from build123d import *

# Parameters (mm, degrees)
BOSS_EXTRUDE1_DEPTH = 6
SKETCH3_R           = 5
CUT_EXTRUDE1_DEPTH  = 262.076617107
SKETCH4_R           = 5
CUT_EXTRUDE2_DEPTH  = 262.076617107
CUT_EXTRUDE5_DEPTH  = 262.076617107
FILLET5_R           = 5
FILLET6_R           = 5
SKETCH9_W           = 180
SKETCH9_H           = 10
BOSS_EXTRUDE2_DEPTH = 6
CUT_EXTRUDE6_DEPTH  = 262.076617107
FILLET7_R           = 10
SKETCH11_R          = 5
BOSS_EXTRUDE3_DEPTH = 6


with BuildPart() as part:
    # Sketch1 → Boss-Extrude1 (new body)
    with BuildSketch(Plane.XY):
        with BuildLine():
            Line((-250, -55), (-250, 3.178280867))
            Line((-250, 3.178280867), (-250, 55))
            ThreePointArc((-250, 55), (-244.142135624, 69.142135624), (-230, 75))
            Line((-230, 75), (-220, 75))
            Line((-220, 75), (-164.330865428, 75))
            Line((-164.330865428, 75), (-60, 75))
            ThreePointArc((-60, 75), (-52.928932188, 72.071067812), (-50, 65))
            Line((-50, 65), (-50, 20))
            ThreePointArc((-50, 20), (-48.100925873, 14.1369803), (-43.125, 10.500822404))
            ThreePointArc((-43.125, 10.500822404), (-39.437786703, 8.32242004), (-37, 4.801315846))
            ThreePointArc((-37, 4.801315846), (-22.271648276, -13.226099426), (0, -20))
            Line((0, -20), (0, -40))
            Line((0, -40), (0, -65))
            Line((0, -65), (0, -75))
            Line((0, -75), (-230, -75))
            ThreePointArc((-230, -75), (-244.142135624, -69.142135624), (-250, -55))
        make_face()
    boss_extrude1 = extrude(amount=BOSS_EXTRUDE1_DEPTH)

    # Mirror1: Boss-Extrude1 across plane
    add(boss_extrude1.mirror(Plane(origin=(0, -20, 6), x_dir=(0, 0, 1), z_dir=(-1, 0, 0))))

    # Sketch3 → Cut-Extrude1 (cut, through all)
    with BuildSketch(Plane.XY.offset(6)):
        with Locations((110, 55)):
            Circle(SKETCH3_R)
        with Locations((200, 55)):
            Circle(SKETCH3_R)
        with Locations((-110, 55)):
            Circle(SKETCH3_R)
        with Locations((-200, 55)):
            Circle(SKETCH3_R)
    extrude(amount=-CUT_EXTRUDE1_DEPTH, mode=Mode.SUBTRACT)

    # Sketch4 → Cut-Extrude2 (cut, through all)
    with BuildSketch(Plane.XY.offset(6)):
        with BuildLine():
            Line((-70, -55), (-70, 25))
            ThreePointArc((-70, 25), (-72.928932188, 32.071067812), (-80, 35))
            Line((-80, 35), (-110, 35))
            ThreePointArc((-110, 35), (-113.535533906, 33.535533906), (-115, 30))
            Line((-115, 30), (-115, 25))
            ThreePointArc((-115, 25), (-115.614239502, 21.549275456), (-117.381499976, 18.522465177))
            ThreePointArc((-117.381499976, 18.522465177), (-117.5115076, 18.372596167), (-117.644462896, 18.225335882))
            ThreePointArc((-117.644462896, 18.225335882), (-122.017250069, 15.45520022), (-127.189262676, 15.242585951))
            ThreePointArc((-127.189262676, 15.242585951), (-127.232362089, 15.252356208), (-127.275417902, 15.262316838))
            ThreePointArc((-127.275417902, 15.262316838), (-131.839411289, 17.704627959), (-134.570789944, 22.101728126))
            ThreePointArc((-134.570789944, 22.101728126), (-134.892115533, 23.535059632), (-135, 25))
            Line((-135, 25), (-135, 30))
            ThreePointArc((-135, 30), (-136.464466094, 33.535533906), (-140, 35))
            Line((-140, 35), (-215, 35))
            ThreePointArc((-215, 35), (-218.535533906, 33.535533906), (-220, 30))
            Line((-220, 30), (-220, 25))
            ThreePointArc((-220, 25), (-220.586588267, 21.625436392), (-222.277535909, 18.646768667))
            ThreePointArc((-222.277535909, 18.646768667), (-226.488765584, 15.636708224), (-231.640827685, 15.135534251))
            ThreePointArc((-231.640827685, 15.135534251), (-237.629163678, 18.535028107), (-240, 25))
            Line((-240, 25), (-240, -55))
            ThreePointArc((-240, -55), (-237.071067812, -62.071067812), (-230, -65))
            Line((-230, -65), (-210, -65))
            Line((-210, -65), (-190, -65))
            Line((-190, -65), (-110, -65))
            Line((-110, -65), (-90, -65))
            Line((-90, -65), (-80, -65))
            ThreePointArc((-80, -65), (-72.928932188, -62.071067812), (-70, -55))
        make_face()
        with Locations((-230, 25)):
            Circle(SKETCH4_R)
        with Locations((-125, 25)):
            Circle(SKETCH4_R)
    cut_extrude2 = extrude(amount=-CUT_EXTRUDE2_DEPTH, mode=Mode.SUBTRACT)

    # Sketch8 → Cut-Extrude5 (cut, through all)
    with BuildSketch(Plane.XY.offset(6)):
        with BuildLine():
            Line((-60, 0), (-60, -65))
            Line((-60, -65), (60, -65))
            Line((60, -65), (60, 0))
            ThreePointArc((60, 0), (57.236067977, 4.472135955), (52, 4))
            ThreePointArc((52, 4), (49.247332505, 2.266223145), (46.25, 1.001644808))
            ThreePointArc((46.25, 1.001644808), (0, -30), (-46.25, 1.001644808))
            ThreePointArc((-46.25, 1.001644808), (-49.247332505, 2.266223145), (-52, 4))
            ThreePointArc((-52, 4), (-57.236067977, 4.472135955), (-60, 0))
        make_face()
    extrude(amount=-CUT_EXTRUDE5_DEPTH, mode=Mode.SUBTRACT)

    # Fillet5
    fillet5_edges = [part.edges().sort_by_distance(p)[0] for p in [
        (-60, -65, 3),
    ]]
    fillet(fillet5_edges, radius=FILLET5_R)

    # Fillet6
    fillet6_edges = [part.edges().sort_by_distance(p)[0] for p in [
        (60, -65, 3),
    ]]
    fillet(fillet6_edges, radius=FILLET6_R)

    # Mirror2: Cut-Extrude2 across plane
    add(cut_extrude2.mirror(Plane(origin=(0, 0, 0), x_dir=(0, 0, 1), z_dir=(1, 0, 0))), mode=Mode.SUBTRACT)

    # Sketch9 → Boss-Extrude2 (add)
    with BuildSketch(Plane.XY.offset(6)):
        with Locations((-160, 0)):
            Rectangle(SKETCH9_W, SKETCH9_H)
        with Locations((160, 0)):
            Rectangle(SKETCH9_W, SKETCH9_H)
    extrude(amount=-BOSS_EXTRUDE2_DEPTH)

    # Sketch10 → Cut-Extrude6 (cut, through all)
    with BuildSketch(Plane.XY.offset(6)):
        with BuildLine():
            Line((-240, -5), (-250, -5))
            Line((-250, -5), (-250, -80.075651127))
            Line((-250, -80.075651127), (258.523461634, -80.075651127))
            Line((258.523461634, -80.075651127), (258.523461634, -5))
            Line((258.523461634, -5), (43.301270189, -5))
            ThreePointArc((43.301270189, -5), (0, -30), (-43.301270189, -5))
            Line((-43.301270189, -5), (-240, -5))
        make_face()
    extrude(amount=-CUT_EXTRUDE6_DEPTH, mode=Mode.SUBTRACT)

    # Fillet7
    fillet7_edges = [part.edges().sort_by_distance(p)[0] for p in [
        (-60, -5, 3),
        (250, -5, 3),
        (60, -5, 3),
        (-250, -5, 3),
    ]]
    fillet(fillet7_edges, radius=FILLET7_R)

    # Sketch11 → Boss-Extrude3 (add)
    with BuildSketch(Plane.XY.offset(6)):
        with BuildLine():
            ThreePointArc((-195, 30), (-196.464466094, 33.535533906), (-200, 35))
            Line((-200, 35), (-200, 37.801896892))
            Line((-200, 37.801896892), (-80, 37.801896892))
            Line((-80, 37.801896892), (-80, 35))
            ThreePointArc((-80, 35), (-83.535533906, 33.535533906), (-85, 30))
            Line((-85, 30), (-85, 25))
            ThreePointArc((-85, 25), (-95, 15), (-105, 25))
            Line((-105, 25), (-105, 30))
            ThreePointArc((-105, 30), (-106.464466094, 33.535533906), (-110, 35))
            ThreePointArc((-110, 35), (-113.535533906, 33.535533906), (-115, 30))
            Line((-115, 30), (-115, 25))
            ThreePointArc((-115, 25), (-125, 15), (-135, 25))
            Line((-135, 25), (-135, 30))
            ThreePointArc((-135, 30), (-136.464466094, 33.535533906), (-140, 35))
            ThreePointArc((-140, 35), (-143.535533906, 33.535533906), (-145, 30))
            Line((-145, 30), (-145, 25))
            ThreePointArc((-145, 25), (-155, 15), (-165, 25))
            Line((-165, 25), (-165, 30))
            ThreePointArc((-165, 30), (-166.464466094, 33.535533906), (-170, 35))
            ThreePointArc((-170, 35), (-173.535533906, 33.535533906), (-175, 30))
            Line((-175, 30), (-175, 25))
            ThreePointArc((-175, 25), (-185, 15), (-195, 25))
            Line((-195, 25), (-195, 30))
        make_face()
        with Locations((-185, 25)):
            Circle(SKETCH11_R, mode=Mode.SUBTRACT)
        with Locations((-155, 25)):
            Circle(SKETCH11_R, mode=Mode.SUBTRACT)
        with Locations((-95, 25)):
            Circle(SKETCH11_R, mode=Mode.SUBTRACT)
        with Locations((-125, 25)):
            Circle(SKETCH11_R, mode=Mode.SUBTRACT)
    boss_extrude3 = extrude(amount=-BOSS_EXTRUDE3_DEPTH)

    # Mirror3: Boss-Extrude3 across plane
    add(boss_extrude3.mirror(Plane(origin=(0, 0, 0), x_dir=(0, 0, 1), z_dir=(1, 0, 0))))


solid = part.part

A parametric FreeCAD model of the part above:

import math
import FreeCAD as App
import Part
import Sketcher
Q = App.Units.Quantity


def edges_at(feature, points):
    """Names of the edges that pass closest to the given points."""
    edges = feature.Shape.Edges
    near = lambda p: min(range(len(edges)), key=lambda i: edges[i].distToShape(Part.Vertex(*p))[0])
    return sorted({f"Edge{near(p) + 1}" for p in points})

doc = App.newDocument("Part")
body = doc.addObject("PartDesign::Body", "Body")

# Sketch on XY plane
sketch1 = body.newObject("Sketcher::SketchObject", "Sketch")
sketch1.AttachmentSupport = (doc.getObject("XY_Plane"), [""])
sketch1.MapMode = "FlatFace"
sketch1.addGeometry([
    Part.LineSegment(App.Vector(-250, 55, 0), App.Vector(-250, -55, 0)),  # 0
    Part.ArcOfCircle(Part.Circle(App.Vector(-230, -55, 0), App.Vector(0, 0, 1), 20), math.radians(180), math.radians(270)),  # 1
    Part.LineSegment(App.Vector(-230, -75, 0), App.Vector(0, -75, 0)),  # 2
    Part.LineSegment(App.Vector(0, -75, 0), App.Vector(0, -20, 0)),  # 3
    Part.ArcOfCircle(Part.Circle(App.Vector(0, 20, 0), App.Vector(0, 0, 1), 40), math.radians(-157.668355), math.radians(-90)),  # 4
    Part.ArcOfCircle(Part.Circle(App.Vector(-46.25, 1.001645, 0), App.Vector(0, 0, 1), 10), math.radians(22.331645), math.radians(71.790043)),  # 5
    Part.ArcOfCircle(Part.Circle(App.Vector(-40, 20, 0), App.Vector(0, 0, 1), 10), math.radians(180), math.radians(251.790043)),  # 6
    Part.LineSegment(App.Vector(-50, 20, 0), App.Vector(-50, 65, 0)),  # 7
    Part.ArcOfCircle(Part.Circle(App.Vector(-60, 65, 0), App.Vector(0, 0, 1), 10), math.radians(0), math.radians(90)),  # 8
    Part.LineSegment(App.Vector(-60, 75, 0), App.Vector(-230, 75, 0)),  # 9
    Part.ArcOfCircle(Part.Circle(App.Vector(-230, 55, 0), App.Vector(0, 0, 1), 20), math.radians(90), math.radians(180)),  # 10
], False)
sketch1.addConstraint([
    Sketcher.Constraint("Tangent", 0, 2, 1, 1),
    Sketcher.Constraint("Tangent", 1, 2, 2, 1),
    Sketcher.Constraint("Coincident", 2, 2, 3, 1),
    Sketcher.Constraint("Coincident", 3, 2, 4, 2),
    Sketcher.Constraint("Tangent", 4, 1, 5, 1),
    Sketcher.Constraint("Tangent", 5, 2, 6, 2),
    Sketcher.Constraint("Tangent", 6, 1, 7, 1),
    Sketcher.Constraint("Tangent", 7, 2, 8, 1),
    Sketcher.Constraint("Tangent", 8, 2, 9, 1),
    Sketcher.Constraint("Tangent", 9, 2, 10, 1),
    Sketcher.Constraint("Tangent", 10, 2, 0, 1),
    Sketcher.Constraint("Vertical", 0),
    Sketcher.Constraint("Horizontal", 2),
    Sketcher.Constraint("Vertical", 3),
    Sketcher.Constraint("Vertical", 7),
    Sketcher.Constraint("Horizontal", 9),
    Sketcher.Constraint("Equal", 5, 6),
    Sketcher.Constraint("Equal", 6, 8),
    Sketcher.Constraint("Equal", 1, 10),
    Sketcher.Constraint("PointOnObject", 4, 3, -2),
    Sketcher.Constraint("PointOnObject", 2, 2, -2),
    Sketcher.Constraint("Horizontal", 4, 3, 6, 3),
    Sketcher.Constraint("Radius", 1, Q("20 mm")),
    Sketcher.Constraint("Radius", 4, Q("40 mm")),
    Sketcher.Constraint("Radius", 5, Q("10 mm")),
    Sketcher.Constraint("DistanceX", 2, 1, 2, 2, Q("230 mm")),
    Sketcher.Constraint("DistanceX", 9, 2, 9, 1, Q("170 mm")),
    Sketcher.Constraint("DistanceY", 0, 2, 0, 1, Q("110 mm")),
    Sketcher.Constraint("DistanceY", 3, 1, 3, 2, Q("55 mm")),
    Sketcher.Constraint("DistanceY", 1, 3, -1, 1, Q("55 mm")),
])
pad1 = body.newObject("PartDesign::Pad", "Pad")
pad1.Profile = sketch1
pad1.Length = 6
doc.recompute()

mirrored = body.newObject("PartDesign::Mirrored", "Mirrored")
mirrored.Originals = [pad1]
mirrored.MirrorPlane = (doc.getObject("YZ_Plane"), [""])
body.Tip = mirrored

# Sketch on XY plane
sketch2 = body.newObject("Sketcher::SketchObject", "Sketch001")
sketch2.AttachmentSupport = (doc.getObject("XY_Plane"), [""])
sketch2.MapMode = "FlatFace"
sketch2.AttachmentOffset = App.Placement(App.Vector(0, 0, 6), App.Rotation())
sketch2.addGeometry([
    Part.Circle(App.Vector(110, 55, 0), App.Vector(0, 0, 1), 5),
    Part.Circle(App.Vector(200, 55, 0), App.Vector(0, 0, 1), 5),
    Part.Circle(App.Vector(-110, 55, 0), App.Vector(0, 0, 1), 5),
    Part.Circle(App.Vector(-200, 55, 0), App.Vector(0, 0, 1), 5),
], False)
sketch2.addConstraint([
    Sketcher.Constraint("Equal", 0, 1),
    Sketcher.Constraint("Equal", 1, 2),
    Sketcher.Constraint("Equal", 2, 3),
    Sketcher.Constraint("Symmetric", 0, 3, 2, 3, -2),
    Sketcher.Constraint("Symmetric", 1, 3, 3, 3, -2),
    Sketcher.Constraint("Horizontal", 0, 3, 1, 3),
    Sketcher.Constraint("Diameter", 0, Q("10 mm")),
    Sketcher.Constraint("DistanceX", -1, 1, 0, 3, Q("110 mm")),
    Sketcher.Constraint("DistanceY", -1, 1, 0, 3, Q("55 mm")),
    Sketcher.Constraint("DistanceX", -1, 1, 1, 3, Q("200 mm")),
])
pocket1 = body.newObject("PartDesign::Pocket", "Pocket")
pocket1.Profile = sketch2
pocket1.Type = "ThroughAll"

# Sketch on XY plane
sketch3 = body.newObject("Sketcher::SketchObject", "Sketch002")
sketch3.AttachmentSupport = (doc.getObject("XY_Plane"), [""])
sketch3.MapMode = "FlatFace"
sketch3.AttachmentOffset = App.Placement(App.Vector(0, 0, 6), App.Rotation())
sketch3.addGeometry([
    Part.LineSegment(App.Vector(-70, -55, 0), App.Vector(-70, 25, 0)),  # 0
    Part.ArcOfCircle(Part.Circle(App.Vector(-80, 25, 0), App.Vector(0, 0, 1), 10), math.radians(0), math.radians(90)),  # 1
    Part.LineSegment(App.Vector(-80, 35, 0), App.Vector(-110, 35, 0)),  # 2
    Part.ArcOfCircle(Part.Circle(App.Vector(-110, 30, 0), App.Vector(0, 0, 1), 5), math.radians(90), math.radians(180)),  # 3
    Part.LineSegment(App.Vector(-115, 30, 0), App.Vector(-115, 25, 0)),  # 4
    Part.ArcOfCircle(Part.Circle(App.Vector(-125, 25, 0), App.Vector(0, 0, 1), 10), math.radians(-40.372437), math.radians(0)),  # 5
    Part.ArcOfCircle(Part.Circle(App.Vector(-125.000002, 25.000002, 0), App.Vector(0, 0, 1), 10.000002), math.radians(-42.645975), math.radians(-40.372438)),  # 6
    Part.ArcOfCircle(Part.Circle(App.Vector(-125, 25, 0), App.Vector(0, 0, 1), 10), math.radians(-102.645975), math.radians(-42.645975)),  # 7
    Part.ArcOfCircle(Part.Circle(App.Vector(-125.000002, 24.99999, 0), App.Vector(0, 0, 1), 9.99999), math.radians(-103.15239), math.radians(-102.645975)),  # 8
    Part.ArcOfCircle(Part.Circle(App.Vector(-125, 25, 0), App.Vector(0, 0, 1), 10), math.radians(-163.15239), math.radians(-103.15239)),  # 9
    Part.ArcOfCircle(Part.Circle(App.Vector(-125, 25, 0), App.Vector(0, 0, 1), 10), math.radians(-180), math.radians(-163.15239)),  # 10
    Part.LineSegment(App.Vector(-135, 25, 0), App.Vector(-135, 30, 0)),  # 11
    Part.ArcOfCircle(Part.Circle(App.Vector(-140, 30, 0), App.Vector(0, 0, 1), 5), math.radians(0), math.radians(90)),  # 12
    Part.LineSegment(App.Vector(-140, 35, 0), App.Vector(-215, 35, 0)),  # 13
    Part.ArcOfCircle(Part.Circle(App.Vector(-215, 30, 0), App.Vector(0, 0, 1), 5), math.radians(90), math.radians(180)),  # 14
    Part.LineSegment(App.Vector(-220, 30, 0), App.Vector(-220, 25, 0)),  # 15
    Part.ArcOfCircle(Part.Circle(App.Vector(-230, 25, 0), App.Vector(0, 0, 1), 10), math.radians(-39.443955), math.radians(0)),  # 16
    Part.ArcOfCircle(Part.Circle(App.Vector(-230, 25, 0), App.Vector(0, 0, 1), 10), math.radians(-99.443955), math.radians(-39.443955)),  # 17
    Part.ArcOfCircle(Part.Circle(App.Vector(-230, 25, 0), App.Vector(0, 0, 1), 10), math.radians(180), math.radians(260.556045)),  # 18
    Part.LineSegment(App.Vector(-240, 25, 0), App.Vector(-240, -55, 0)),  # 19
    Part.ArcOfCircle(Part.Circle(App.Vector(-230, -55, 0), App.Vector(0, 0, 1), 10), math.radians(180), math.radians(270)),  # 20
    Part.LineSegment(App.Vector(-230, -65, 0), App.Vector(-80, -65, 0)),  # 21
    Part.ArcOfCircle(Part.Circle(App.Vector(-80, -55, 0), App.Vector(0, 0, 1), 10), math.radians(-90), math.radians(0)),  # 22
    Part.Circle(App.Vector(-230, 25, 0), App.Vector(0, 0, 1), 5),  # 23
    Part.Circle(App.Vector(-125, 25, 0), App.Vector(0, 0, 1), 5),  # 24
], False)
sketch3.addConstraint([
    Sketcher.Constraint("Tangent", 0, 2, 1, 1),
    Sketcher.Constraint("Tangent", 1, 2, 2, 1),
    Sketcher.Constraint("Tangent", 2, 2, 3, 1),
    Sketcher.Constraint("Tangent", 3, 2, 4, 1),
    Sketcher.Constraint("Tangent", 4, 2, 5, 2),
    Sketcher.Constraint("Tangent", 5, 1, 6, 2),
    Sketcher.Constraint("Tangent", 6, 1, 7, 2),
    Sketcher.Constraint("Tangent", 7, 1, 8, 2),
    Sketcher.Constraint("Tangent", 8, 1, 9, 2),
    Sketcher.Constraint("Tangent", 9, 1, 10, 2),
    Sketcher.Constraint("Tangent", 10, 1, 11, 1),
    Sketcher.Constraint("Tangent", 11, 2, 12, 1),
    Sketcher.Constraint("Tangent", 12, 2, 13, 1),
    Sketcher.Constraint("Tangent", 13, 2, 14, 1),
    Sketcher.Constraint("Tangent", 14, 2, 15, 1),
    Sketcher.Constraint("Tangent", 15, 2, 16, 2),
    Sketcher.Constraint("Tangent", 16, 1, 17, 2),
    Sketcher.Constraint("Tangent", 17, 1, 18, 2),
    Sketcher.Constraint("Tangent", 18, 1, 19, 1),
    Sketcher.Constraint("Tangent", 19, 2, 20, 1),
    Sketcher.Constraint("Tangent", 20, 2, 21, 1),
    Sketcher.Constraint("Tangent", 21, 2, 22, 1),
    Sketcher.Constraint("Tangent", 22, 2, 0, 1),
    Sketcher.Constraint("Vertical", 0),
    Sketcher.Constraint("Horizontal", 2),
    Sketcher.Constraint("Vertical", 4),
    Sketcher.Constraint("Vertical", 11),
    Sketcher.Constraint("Horizontal", 13),
    Sketcher.Constraint("Vertical", 15),
    Sketcher.Constraint("Vertical", 19),
    Sketcher.Constraint("Horizontal", 21),
    Sketcher.Constraint("Coincident", 7, 3, 5, 3),
    Sketcher.Constraint("Coincident", 9, 3, 5, 3),
    Sketcher.Constraint("Coincident", 18, 3, 16, 3),
    Sketcher.Constraint("Coincident", 23, 3, 16, 3),
    Sketcher.Constraint("Coincident", 24, 3, 5, 3),
    Sketcher.Constraint("Equal", 1, 5),
    Sketcher.Constraint("Equal", 9, 10),
    Sketcher.Constraint("Equal", 3, 12),
    Sketcher.Constraint("Equal", 12, 14),
    Sketcher.Constraint("Equal", 10, 16),
    Sketcher.Constraint("Equal", 18, 20),
    Sketcher.Constraint("Equal", 20, 22),
    Sketcher.Constraint("Equal", 14, 23),
    Sketcher.Constraint("Equal", 23, 24),
    Sketcher.Constraint("Horizontal", 1, 3, 5, 3),
    Sketcher.Constraint("Horizontal", 3, 3, 12, 3),
    Sketcher.Constraint("Horizontal", 10, 3, 16, 3),
    Sketcher.Constraint("Diameter", 23, Q("10 mm")),
    Sketcher.Constraint("Radius", 1, Q("10 mm")),
    Sketcher.Constraint("DistanceX", 2, 2, 2, 1, Q("30 mm")),
    Sketcher.Constraint("DistanceX", 13, 2, 13, 1, Q("75 mm")),
    Sketcher.Constraint("DistanceY", 0, 1, 0, 2, Q("80 mm")),
    Sketcher.Constraint("DistanceX", 1, 3, -1, 1, Q("80 mm")),
    Sketcher.Constraint("DistanceY", -1, 1, 1, 3, Q("25 mm")),
    Sketcher.Constraint("DistanceX", 5, 1, -1, 1, Q("117.3815 mm")),
    Sketcher.Constraint("DistanceX", 7, 1, 6, 1, Q("9.5448 mm")),
    Sketcher.Constraint("DistanceX", 9, 1, -1, 1, Q("134.57079 mm")),
    Sketcher.Constraint("DistanceY", -1, 1, 16, 1, Q("18.646769 mm")),
    Sketcher.Constraint("DistanceY", 6, 1, 5, 1, Q("0.297129 mm")),
    Sketcher.Constraint("DistanceY", 7, 1, 8, 1, Q("0.019731 mm")),
    Sketcher.Constraint("DistanceX", 17, 1, 16, 1, Q("9.363292 mm")),
])
pocket2 = body.newObject("PartDesign::Pocket", "Pocket001")
pocket2.Profile = sketch3
pocket2.Type = "ThroughAll"

# Sketch on XY plane
sketch4 = body.newObject("Sketcher::SketchObject", "Sketch003")
sketch4.AttachmentSupport = (doc.getObject("XY_Plane"), [""])
sketch4.MapMode = "FlatFace"
sketch4.AttachmentOffset = App.Placement(App.Vector(0, 0, 6), App.Rotation())
sketch4.addGeometry([
    Part.LineSegment(App.Vector(-60, 0, 0), App.Vector(-60, -65, 0)),  # 0
    Part.LineSegment(App.Vector(-60, -65, 0), App.Vector(60, -65, 0)),  # 1
    Part.LineSegment(App.Vector(60, -65, 0), App.Vector(60, 0, 0)),  # 2
    Part.ArcOfCircle(Part.Circle(App.Vector(55, 0, 0), App.Vector(0, 0, 1), 5), math.radians(0), math.radians(126.869898)),  # 3
    Part.ArcOfCircle(Part.Circle(App.Vector(40, 20, 0), App.Vector(0, 0, 1), 20), math.radians(-71.790043), math.radians(-53.130102)),  # 4
    Part.ArcOfCircle(Part.Circle(App.Vector(0, 20, 0), App.Vector(0, 0, 1), 50), math.radians(-157.668355), math.radians(-22.331645)),  # 5
    Part.ArcOfCircle(Part.Circle(App.Vector(-40, 20, 0), App.Vector(0, 0, 1), 20), math.radians(-126.869898), math.radians(-108.209957)),  # 6
    Part.ArcOfCircle(Part.Circle(App.Vector(-55, 0, 0), App.Vector(0, 0, 1), 5), math.radians(53.130102), math.radians(180)),  # 7
], False)
sketch4.addConstraint([
    Sketcher.Constraint("Coincident", 0, 2, 1, 1),
    Sketcher.Constraint("Coincident", 1, 2, 2, 1),
    Sketcher.Constraint("Tangent", 2, 2, 3, 1),
    Sketcher.Constraint("Tangent", 3, 2, 4, 2),
    Sketcher.Constraint("Coincident", 4, 1, 5, 2),
    Sketcher.Constraint("Coincident", 5, 1, 6, 2),
    Sketcher.Constraint("Tangent", 6, 1, 7, 1),
    Sketcher.Constraint("Tangent", 7, 2, 0, 1),
    Sketcher.Constraint("Vertical", 0),
    Sketcher.Constraint("Horizontal", 1),
    Sketcher.Constraint("Vertical", 2),
    Sketcher.Constraint("Equal", 4, 6),
    Sketcher.Constraint("Equal", 3, 7),
    Sketcher.Constraint("Symmetric", 3, 3, 7, 3, -1, 1),
    Sketcher.Constraint("Symmetric", 4, 3, 6, 3, -2),
    Sketcher.Constraint("PointOnObject", 5, 3, -2),
    Sketcher.Constraint("Horizontal", 4, 3, 5, 3),
    Sketcher.Constraint("Radius", 3, Q("5 mm")),
    Sketcher.Constraint("Radius", 4, Q("20 mm")),
    Sketcher.Constraint("Radius", 5, Q("50 mm")),
    Sketcher.Constraint("DistanceX", 1, 1, 1, 2, Q("120 mm")),
    Sketcher.Constraint("DistanceY", 0, 2, 0, 1, Q("65 mm")),
    Sketcher.Constraint("DistanceX", -1, 1, 4, 3, Q("40 mm")),
])
pocket3 = body.newObject("PartDesign::Pocket", "Pocket002")
pocket3.Profile = sketch4
pocket3.Type = "ThroughAll"
doc.recompute()

fillet = body.newObject("PartDesign::Fillet", "Fillet")
fillet.Base = (pocket3, edges_at(pocket3, [(-60, -65, 3)]))
fillet.Radius = 5
doc.recompute()

fillet2 = body.newObject("PartDesign::Fillet", "Fillet001")
fillet2.Base = (fillet, edges_at(fillet, [(60, -65, 3)]))
fillet2.Radius = 5
doc.recompute()

mirrored2 = body.newObject("PartDesign::Mirrored", "Mirrored001")
mirrored2.Originals = [pocket2]
mirrored2.MirrorPlane = (doc.getObject("YZ_Plane"), [""])
body.Tip = mirrored2

# Sketch on XY plane
sketch5 = body.newObject("Sketcher::SketchObject", "Sketch004")
sketch5.AttachmentSupport = (doc.getObject("XY_Plane"), [""])
sketch5.MapMode = "FlatFace"
sketch5.AttachmentOffset = App.Placement(App.Vector(0, 0, 6), App.Rotation())
sketch5.addGeometry([
    Part.LineSegment(App.Vector(-250, 5, 0), App.Vector(-250, -5, 0)),  # 0
    Part.LineSegment(App.Vector(-250, -5, 0), App.Vector(-70, -5, 0)),  # 1
    Part.LineSegment(App.Vector(-70, -5, 0), App.Vector(-70, 5, 0)),  # 2
    Part.LineSegment(App.Vector(-70, 5, 0), App.Vector(-250, 5, 0)),  # 3
    Part.LineSegment(App.Vector(70, 5, 0), App.Vector(70, -5, 0)),  # 4
    Part.LineSegment(App.Vector(70, -5, 0), App.Vector(250, -5, 0)),  # 5
    Part.LineSegment(App.Vector(250, -5, 0), App.Vector(250, 5, 0)),  # 6
    Part.LineSegment(App.Vector(250, 5, 0), App.Vector(70, 5, 0)),  # 7
], False)
sketch5.addConstraint([
    Sketcher.Constraint("Coincident", 0, 2, 1, 1),
    Sketcher.Constraint("Coincident", 1, 2, 2, 1),
    Sketcher.Constraint("Coincident", 2, 2, 3, 1),
    Sketcher.Constraint("Coincident", 3, 2, 0, 1),
    Sketcher.Constraint("Coincident", 4, 2, 5, 1),
    Sketcher.Constraint("Coincident", 5, 2, 6, 1),
    Sketcher.Constraint("Coincident", 6, 2, 7, 1),
    Sketcher.Constraint("Coincident", 7, 2, 4, 1),
    Sketcher.Constraint("Vertical", 0),
    Sketcher.Constraint("Horizontal", 1),
    Sketcher.Constraint("Vertical", 2),
    Sketcher.Constraint("Horizontal", 3),
    Sketcher.Constraint("Vertical", 4),
    Sketcher.Constraint("Horizontal", 5),
    Sketcher.Constraint("Vertical", 6),
    Sketcher.Constraint("Horizontal", 7),
    Sketcher.Constraint("Symmetric", 2, 2, 4, 2, -1, 1),
    Sketcher.Constraint("Symmetric", 0, 2, 6, 2, -1, 1),
    Sketcher.Constraint("Horizontal", 1, 2, 4, 2),
    Sketcher.Constraint("DistanceX", 1, 1, 1, 2, Q("180 mm")),
    Sketcher.Constraint("DistanceY", 0, 2, 0, 1, Q("10 mm")),
    Sketcher.Constraint("DistanceX", 0, 2, -1, 1, Q("250 mm")),
])
pad2 = body.newObject("PartDesign::Pad", "Pad001")
pad2.Profile = sketch5
pad2.Length = 6
pad2.Reversed = True

# Sketch on XY plane
sketch6 = body.newObject("Sketcher::SketchObject", "Sketch005")
sketch6.AttachmentSupport = (doc.getObject("XY_Plane"), [""])
sketch6.MapMode = "FlatFace"
sketch6.AttachmentOffset = App.Placement(App.Vector(0, 0, 6), App.Rotation())
sketch6.addGeometry([
    Part.LineSegment(App.Vector(-250, -5, 0), App.Vector(-250, -80.075651, 0)),  # 0
    Part.LineSegment(App.Vector(-250, -80.075651, 0), App.Vector(258.523462, -80.075651, 0)),  # 1
    Part.LineSegment(App.Vector(258.523462, -80.075651, 0), App.Vector(258.523462, -5, 0)),  # 2
    Part.LineSegment(App.Vector(258.523462, -5, 0), App.Vector(43.30127, -5, 0)),  # 3
    Part.ArcOfCircle(Part.Circle(App.Vector(0, 20, 0), App.Vector(0, 0, 1), 50), math.radians(-150), math.radians(-30)),  # 4
    Part.LineSegment(App.Vector(-43.30127, -5, 0), App.Vector(-250, -5, 0)),  # 5
], False)
sketch6.addConstraint([
    Sketcher.Constraint("Coincident", 0, 2, 1, 1),
    Sketcher.Constraint("Coincident", 1, 2, 2, 1),
    Sketcher.Constraint("Coincident", 2, 2, 3, 1),
    Sketcher.Constraint("Coincident", 3, 2, 4, 2),
    Sketcher.Constraint("Coincident", 4, 1, 5, 1),
    Sketcher.Constraint("Coincident", 5, 2, 0, 1),
    Sketcher.Constraint("Vertical", 0),
    Sketcher.Constraint("Horizontal", 1),
    Sketcher.Constraint("Vertical", 2),
    Sketcher.Constraint("Horizontal", 3),
    Sketcher.Constraint("Horizontal", 5),
    Sketcher.Constraint("Symmetric", 3, 2, 4, 1, -2),
    Sketcher.Constraint("Radius", 4, Q("50 mm")),
    Sketcher.Constraint("DistanceY", -1, 1, 4, 3, Q("20 mm")),
    Sketcher.Constraint("DistanceX", 0, 2, -1, 1, Q("250 mm")),
    Sketcher.Constraint("DistanceY", 2, 2, -1, 1, Q("5 mm")),
    Sketcher.Constraint("DistanceX", 1, 1, 1, 2, Q("508.523462 mm")),
    Sketcher.Constraint("DistanceY", 0, 2, 0, 1, Q("75.075651 mm")),
])
pocket4 = body.newObject("PartDesign::Pocket", "Pocket003")
pocket4.Profile = sketch6
pocket4.Type = "ThroughAll"
doc.recompute()

fillet3 = body.newObject("PartDesign::Fillet", "Fillet002")
fillet3.Base = (pocket4, edges_at(pocket4, [
    (-60, -5, 3),
    (250, -5, 3),
    (60, -5, 3),
    (-250, -5, 3),
]))
fillet3.Radius = 10

# Sketch on XY plane
sketch7 = body.newObject("Sketcher::SketchObject", "Sketch006")
sketch7.AttachmentSupport = (doc.getObject("XY_Plane"), [""])
sketch7.MapMode = "FlatFace"
sketch7.AttachmentOffset = App.Placement(App.Vector(0, 0, 6), App.Rotation())
sketch7.addGeometry([
    Part.ArcOfCircle(Part.Circle(App.Vector(-200, 30, 0), App.Vector(0, 0, 1), 5), math.radians(0), math.radians(90)),  # 0
    Part.LineSegment(App.Vector(-195, 30, 0), App.Vector(-195, 25, 0)),  # 1
    Part.ArcOfCircle(Part.Circle(App.Vector(-185, 25, 0), App.Vector(0, 0, 1), 10), math.radians(180), math.radians(360)),  # 2
    Part.LineSegment(App.Vector(-175, 25, 0), App.Vector(-175, 30, 0)),  # 3
    Part.ArcOfCircle(Part.Circle(App.Vector(-170, 30, 0), App.Vector(0, 0, 1), 5), math.radians(90), math.radians(180)),  # 4
    Part.ArcOfCircle(Part.Circle(App.Vector(-170, 30, 0), App.Vector(0, 0, 1), 5), math.radians(0), math.radians(90)),  # 5
    Part.LineSegment(App.Vector(-165, 30, 0), App.Vector(-165, 25, 0)),  # 6
    Part.ArcOfCircle(Part.Circle(App.Vector(-155, 25, 0), App.Vector(0, 0, 1), 10), math.radians(180), math.radians(360)),  # 7
    Part.LineSegment(App.Vector(-145, 25, 0), App.Vector(-145, 30, 0)),  # 8
    Part.ArcOfCircle(Part.Circle(App.Vector(-140, 30, 0), App.Vector(0, 0, 1), 5), math.radians(90), math.radians(180)),  # 9
    Part.ArcOfCircle(Part.Circle(App.Vector(-140, 30, 0), App.Vector(0, 0, 1), 5), math.radians(0), math.radians(90)),  # 10
    Part.LineSegment(App.Vector(-135, 30, 0), App.Vector(-135, 25, 0)),  # 11
    Part.ArcOfCircle(Part.Circle(App.Vector(-125, 25, 0), App.Vector(0, 0, 1), 10), math.radians(180), math.radians(360)),  # 12
    Part.LineSegment(App.Vector(-115, 25, 0), App.Vector(-115, 30, 0)),  # 13
    Part.ArcOfCircle(Part.Circle(App.Vector(-110, 30, 0), App.Vector(0, 0, 1), 5), math.radians(90), math.radians(180)),  # 14
    Part.ArcOfCircle(Part.Circle(App.Vector(-110, 30, 0), App.Vector(0, 0, 1), 5), math.radians(0), math.radians(90)),  # 15
    Part.LineSegment(App.Vector(-105, 30, 0), App.Vector(-105, 25, 0)),  # 16
    Part.ArcOfCircle(Part.Circle(App.Vector(-95, 25, 0), App.Vector(0, 0, 1), 10), math.radians(180), math.radians(360)),  # 17
    Part.LineSegment(App.Vector(-85, 25, 0), App.Vector(-85, 30, 0)),  # 18
    Part.ArcOfCircle(Part.Circle(App.Vector(-80, 30, 0), App.Vector(0, 0, 1), 5), math.radians(90), math.radians(180)),  # 19
    Part.LineSegment(App.Vector(-80, 35, 0), App.Vector(-80, 37.801897, 0)),  # 20
    Part.LineSegment(App.Vector(-80, 37.801897, 0), App.Vector(-200, 37.801897, 0)),  # 21
    Part.LineSegment(App.Vector(-200, 37.801897, 0), App.Vector(-200, 35, 0)),  # 22
    Part.Circle(App.Vector(-95, 25, 0), App.Vector(0, 0, 1), 5),  # 23
    Part.Circle(App.Vector(-125, 25, 0), App.Vector(0, 0, 1), 5),  # 24
    Part.Circle(App.Vector(-155, 25, 0), App.Vector(0, 0, 1), 5),  # 25
    Part.Circle(App.Vector(-185, 25, 0), App.Vector(0, 0, 1), 5),  # 26
], False)
sketch7.addConstraint([
    Sketcher.Constraint("Tangent", 0, 1, 1, 1),
    Sketcher.Constraint("Tangent", 1, 2, 2, 1),
    Sketcher.Constraint("Tangent", 2, 2, 3, 1),
    Sketcher.Constraint("Tangent", 3, 2, 4, 2),
    Sketcher.Constraint("Tangent", 4, 1, 5, 2),
    Sketcher.Constraint("Tangent", 5, 1, 6, 1),
    Sketcher.Constraint("Tangent", 6, 2, 7, 1),
    Sketcher.Constraint("Tangent", 7, 2, 8, 1),
    Sketcher.Constraint("Tangent", 8, 2, 9, 2),
    Sketcher.Constraint("Tangent", 9, 1, 10, 2),
    Sketcher.Constraint("Tangent", 10, 1, 11, 1),
    Sketcher.Constraint("Tangent", 11, 2, 12, 1),
    Sketcher.Constraint("Tangent", 12, 2, 13, 1),
    Sketcher.Constraint("Tangent", 13, 2, 14, 2),
    Sketcher.Constraint("Tangent", 14, 1, 15, 2),
    Sketcher.Constraint("Tangent", 15, 1, 16, 1),
    Sketcher.Constraint("Tangent", 16, 2, 17, 1),
    Sketcher.Constraint("Tangent", 17, 2, 18, 1),
    Sketcher.Constraint("Tangent", 18, 2, 19, 2),
    Sketcher.Constraint("Coincident", 19, 1, 20, 1),
    Sketcher.Constraint("Coincident", 20, 2, 21, 1),
    Sketcher.Constraint("Coincident", 21, 2, 22, 1),
    Sketcher.Constraint("Coincident", 22, 2, 0, 2),
    Sketcher.Constraint("Vertical", 1),
    Sketcher.Constraint("Vertical", 3),
    Sketcher.Constraint("Vertical", 6),
    Sketcher.Constraint("Vertical", 8),
    Sketcher.Constraint("Vertical", 11),
    Sketcher.Constraint("Vertical", 13),
    Sketcher.Constraint("Vertical", 16),
    Sketcher.Constraint("Vertical", 18),
    Sketcher.Constraint("Vertical", 20),
    Sketcher.Constraint("Horizontal", 21),
    Sketcher.Constraint("Vertical", 22),
    Sketcher.Constraint("Coincident", 23, 3, 17, 3),
    Sketcher.Constraint("Coincident", 24, 3, 12, 3),
    Sketcher.Constraint("Coincident", 25, 3, 7, 3),
    Sketcher.Constraint("Coincident", 26, 3, 2, 3),
    Sketcher.Constraint("Equal", 0, 4),
    Sketcher.Constraint("Equal", 4, 5),
    Sketcher.Constraint("Equal", 2, 7),
    Sketcher.Constraint("Equal", 5, 9),
    Sketcher.Constraint("Equal", 9, 10),
    Sketcher.Constraint("Equal", 7, 12),
    Sketcher.Constraint("Equal", 10, 14),
    Sketcher.Constraint("Equal", 14, 15),
    Sketcher.Constraint("Equal", 12, 17),
    Sketcher.Constraint("Equal", 15, 19),
    Sketcher.Constraint("Equal", 19, 23),
    Sketcher.Constraint("Equal", 23, 24),
    Sketcher.Constraint("Equal", 24, 25),
    Sketcher.Constraint("Equal", 25, 26),
    Sketcher.Constraint("Horizontal", 0, 3, 4, 3),
    Sketcher.Constraint("Horizontal", 2, 3, 7, 3),
    Sketcher.Constraint("Horizontal", 5, 3, 9, 3),
    Sketcher.Constraint("Horizontal", 7, 3, 12, 3),
    Sketcher.Constraint("Horizontal", 10, 3, 14, 3),
    Sketcher.Constraint("Horizontal", 12, 3, 17, 3),
    Sketcher.Constraint("Horizontal", 15, 3, 19, 3),
    Sketcher.Constraint("Vertical", 5, 3, 4, 1),
    Sketcher.Constraint("Vertical", 10, 3, 9, 1),
    Sketcher.Constraint("Vertical", 15, 3, 14, 1),
    Sketcher.Constraint("Vertical", 0, 3, 21, 2),
    Sketcher.Constraint("Diameter", 23, Q("10 mm")),
    Sketcher.Constraint("Radius", 2, Q("10 mm")),
    Sketcher.Constraint("DistanceX", 21, 2, 21, 1, Q("120 mm")),
    Sketcher.Constraint("DistanceY", 1, 2, 1, 1, Q("5 mm")),
    Sketcher.Constraint("DistanceX", 0, 3, -1, 1, Q("200 mm")),
    Sketcher.Constraint("DistanceY", -1, 1, 0, 3, Q("30 mm")),
    Sketcher.Constraint("DistanceY", 20, 1, 20, 2, Q("2.801897 mm")),
])
pad3 = body.newObject("PartDesign::Pad", "Pad002")
pad3.Profile = sketch7
pad3.Length = 6
pad3.Reversed = True
doc.recompute()

mirrored3 = body.newObject("PartDesign::Mirrored", "Mirrored002")
mirrored3.Originals = [pad3]
mirrored3.MirrorPlane = (doc.getObject("YZ_Plane"), [""])
body.Tip = mirrored3

doc.recompute()
